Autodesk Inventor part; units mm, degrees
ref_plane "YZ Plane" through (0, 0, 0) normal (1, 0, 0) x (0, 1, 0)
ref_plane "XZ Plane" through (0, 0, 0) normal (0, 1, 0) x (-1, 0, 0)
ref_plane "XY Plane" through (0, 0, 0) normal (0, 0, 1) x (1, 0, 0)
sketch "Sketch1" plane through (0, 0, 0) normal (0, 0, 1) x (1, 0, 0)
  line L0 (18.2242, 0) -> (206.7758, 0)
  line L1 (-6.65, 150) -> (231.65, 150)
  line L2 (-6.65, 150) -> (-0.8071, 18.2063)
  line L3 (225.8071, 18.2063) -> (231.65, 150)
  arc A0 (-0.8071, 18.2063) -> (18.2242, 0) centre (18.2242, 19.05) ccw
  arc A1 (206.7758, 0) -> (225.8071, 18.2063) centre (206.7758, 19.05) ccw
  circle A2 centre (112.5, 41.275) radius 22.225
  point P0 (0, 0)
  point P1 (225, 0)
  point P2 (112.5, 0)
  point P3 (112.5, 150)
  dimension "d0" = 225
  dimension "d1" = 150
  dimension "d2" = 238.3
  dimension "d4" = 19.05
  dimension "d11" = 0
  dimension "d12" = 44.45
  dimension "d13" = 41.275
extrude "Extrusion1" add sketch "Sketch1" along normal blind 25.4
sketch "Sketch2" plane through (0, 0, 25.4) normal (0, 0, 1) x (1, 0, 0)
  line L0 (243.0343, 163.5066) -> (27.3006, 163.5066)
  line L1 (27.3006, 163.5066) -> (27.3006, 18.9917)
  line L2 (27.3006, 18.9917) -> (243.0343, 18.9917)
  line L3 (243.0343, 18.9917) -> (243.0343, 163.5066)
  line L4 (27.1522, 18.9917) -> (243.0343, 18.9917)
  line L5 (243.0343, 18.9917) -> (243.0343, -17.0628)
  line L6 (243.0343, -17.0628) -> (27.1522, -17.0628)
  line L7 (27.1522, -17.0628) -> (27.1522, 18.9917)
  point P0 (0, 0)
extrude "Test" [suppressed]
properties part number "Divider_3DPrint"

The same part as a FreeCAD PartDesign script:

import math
import FreeCAD as App
import Part
import Sketcher
Q = App.Units.Quantity

doc = App.newDocument("Part")
body = doc.addObject("PartDesign::Body", "Body")

# Sketch on XY plane
sketch1 = body.newObject("Sketcher::SketchObject", "Sketch")
sketch1.AttachmentSupport = (doc.getObject("XY_Plane"), [""])
sketch1.MapMode = "FlatFace"
sketch1.addGeometry([
    Part.ArcOfCircle(Part.Circle(App.Vector(18.2242, 19.05, 0), App.Vector(0, 0, 1), 19.049992), math.radians(-177.461612), math.radians(-90)),  # 0
    Part.LineSegment(App.Vector(18.2242, 0, 0), App.Vector(206.7758, 0, 0)),  # 1
    Part.ArcOfCircle(Part.Circle(App.Vector(206.7758, 19.05, 0), App.Vector(0, 0, 1), 19.05), math.radians(-90), math.radians(-2.538388)),  # 2
    Part.LineSegment(App.Vector(225.8071, 18.2063, 0), App.Vector(231.65, 150, 0)),  # 3
    Part.LineSegment(App.Vector(231.65, 150, 0), App.Vector(-6.65, 150, 0)),  # 4
    Part.LineSegment(App.Vector(-6.65, 150, 0), App.Vector(-0.8071, 18.2063, 0)),  # 5
    Part.Circle(App.Vector(112.5, 41.275, 0), App.Vector(0, 0, 1), 22.225),  # 6
], False)
sketch1.addConstraint([
    Sketcher.Constraint("Tangent", 0, 2, 1, 1),
    Sketcher.Constraint("Tangent", 1, 2, 2, 1),
    Sketcher.Constraint("Tangent", 2, 2, 3, 1),
    Sketcher.Constraint("Coincident", 3, 2, 4, 1),
    Sketcher.Constraint("Coincident", 4, 2, 5, 1),
    Sketcher.Constraint("Tangent", 5, 2, 0, 1),
    Sketcher.Constraint("Horizontal", 1),
    Sketcher.Constraint("Horizontal", 4),
    Sketcher.Constraint("Equal", 0, 2),
    Sketcher.Constraint("PointOnObject", 0, 2, -1),
    Sketcher.Constraint("Horizontal", 2, 2, 5, 2),
    Sketcher.Constraint("Diameter", 6, Q("1.75 in")),
    Sketcher.Constraint("Radius", 0, Q("0.75 in")),
    Sketcher.Constraint("DistanceX", 4, 2, 4, 1, Q("9.3819 in")),
    Sketcher.Constraint("DistanceY", -1, 1, 6, 3, Q("1.625 in")),
    Sketcher.Constraint("DistanceY", -1, 1, 3, 2, Q("5.9055 in")),
    Sketcher.Constraint("DistanceX", 1, 1, 1, 2, Q("7.4233 in")),
    Sketcher.Constraint("DistanceX", -1, 1, 0, 3, Q("0.7175 in")),
    Sketcher.Constraint("DistanceX", 6, 3, 2, 2, Q("4.4609 in")),
])
pad1 = body.newObject("PartDesign::Pad", "Pad")
pad1.Profile = sketch1
pad1.Length = Q("1 in")

doc.recompute()
